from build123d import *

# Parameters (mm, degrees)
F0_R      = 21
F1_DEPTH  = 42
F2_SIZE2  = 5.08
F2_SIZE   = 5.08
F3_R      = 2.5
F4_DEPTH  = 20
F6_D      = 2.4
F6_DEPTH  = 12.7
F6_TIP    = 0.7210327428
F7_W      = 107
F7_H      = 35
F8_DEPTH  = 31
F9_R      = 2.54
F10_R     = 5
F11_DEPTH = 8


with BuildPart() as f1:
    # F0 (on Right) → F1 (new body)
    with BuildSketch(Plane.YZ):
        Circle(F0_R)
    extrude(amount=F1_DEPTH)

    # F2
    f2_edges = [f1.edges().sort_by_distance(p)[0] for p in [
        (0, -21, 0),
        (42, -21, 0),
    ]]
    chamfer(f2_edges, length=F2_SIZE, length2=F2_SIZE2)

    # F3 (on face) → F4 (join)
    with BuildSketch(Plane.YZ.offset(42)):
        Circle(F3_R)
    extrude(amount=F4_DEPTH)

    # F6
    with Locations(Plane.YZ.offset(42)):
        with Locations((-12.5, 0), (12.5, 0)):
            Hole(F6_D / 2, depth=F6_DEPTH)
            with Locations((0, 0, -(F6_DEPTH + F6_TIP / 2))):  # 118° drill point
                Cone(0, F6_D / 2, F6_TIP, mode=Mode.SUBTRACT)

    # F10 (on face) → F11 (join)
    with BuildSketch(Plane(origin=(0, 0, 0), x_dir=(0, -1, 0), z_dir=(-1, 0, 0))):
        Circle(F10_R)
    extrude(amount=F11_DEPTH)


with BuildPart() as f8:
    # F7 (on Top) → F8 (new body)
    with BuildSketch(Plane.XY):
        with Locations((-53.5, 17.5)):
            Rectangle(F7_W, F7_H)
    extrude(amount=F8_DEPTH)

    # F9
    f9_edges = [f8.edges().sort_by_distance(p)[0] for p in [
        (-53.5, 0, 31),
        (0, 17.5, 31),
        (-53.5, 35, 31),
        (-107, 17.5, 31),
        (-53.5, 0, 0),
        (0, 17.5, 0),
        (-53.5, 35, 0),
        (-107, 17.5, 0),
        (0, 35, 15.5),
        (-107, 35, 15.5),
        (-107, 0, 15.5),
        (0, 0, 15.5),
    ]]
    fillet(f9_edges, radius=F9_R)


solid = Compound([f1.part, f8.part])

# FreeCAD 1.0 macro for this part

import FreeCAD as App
import Part
import Sketcher
from FreeCAD import Vector


def edges_at(feature, points):
    """Names of the edges that pass closest to the given points."""
    edges = feature.Shape.Edges
    near = lambda p: min(range(len(edges)), key=lambda i: edges[i].distToShape(Part.Vertex(*p))[0])
    return sorted({f"Edge{near(p) + 1}" for p in points})

doc = App.newDocument("Part")
params = doc.addObject("Spreadsheet::Sheet", "Params")
for row, (alias, value) in enumerate([
    ("sketch1_diameter", "42 mm"),
    ("pad1_length", "42 mm"),
    ("chamfer_size", "5.08 mm"),
    ("chamfer_size2", "5.08 mm"),
    ("sketch2_diameter", "5 mm"),
    ("pad2_length", "20 mm"),
    ("sketch3_diameter", "2.4 mm"),
    ("hole_diameter", "2.4 mm"),
    ("hole_depth", "12.7 mm"),
    ("sketch4_diameter", "10 mm"),
    ("pad3_length", "8 mm"),
    ("sketch5_width", "107 mm"),
    ("sketch5_height", "35 mm"),
    ("pad4_length", "31 mm"),
    ("fillet_radius", "2.54 mm"),
], start=1):
    params.set(f"A{row}", alias)
    params.set(f"B{row}", "=" + value)
    params.setAlias(f"B{row}", alias)

body = doc.addObject("PartDesign::Body", "Body")

sketch1 = body.newObject("Sketcher::SketchObject", "Sketch")
sketch1.AttachmentSupport = (doc.getObject("YZ_Plane"), [""])
sketch1.MapMode = "FlatFace"
sketch1.addGeometry(Part.Circle(Vector(0, 0, 0), Vector(0, 0, 1), 21), False)
sketch1.addConstraint(Sketcher.Constraint("Coincident", 0, 3, -1, 1))
sketch1.addConstraint(Sketcher.Constraint("Diameter", 0, 42.0))
sketch1.setExpression("Constraints[1]", "Params.sketch1_diameter")
pad1 = body.newObject("PartDesign::Pad", "Pad")
pad1.Profile = sketch1
pad1.setExpression("Length", "Params.pad1_length")
doc.recompute()

chamfer = body.newObject("PartDesign::Chamfer", "Chamfer")
chamfer.Base = (pad1, edges_at(pad1, [(0, -21, 0), (42, -21, 0)]))
chamfer.ChamferType = "Two distances"
chamfer.setExpression("Size", "Params.chamfer_size")
chamfer.setExpression("Size2", "Params.chamfer_size2")

sketch2 = body.newObject("Sketcher::SketchObject", "Sketch001")
sketch2.AttachmentSupport = (doc.getObject("YZ_Plane"), [""])
sketch2.MapMode = "FlatFace"
sketch2.AttachmentOffset = App.Placement(Vector(0, 0, 42), App.Rotation())
sketch2.addGeometry(Part.Circle(Vector(0, 0, 0), Vector(0, 0, 1), 2.5), False)
sketch2.addConstraint(Sketcher.Constraint("Coincident", 0, 3, -1, 1))
sketch2.addConstraint(Sketcher.Constraint("Diameter", 0, 5.0))
sketch2.setExpression("Constraints[1]", "Params.sketch2_diameter")
pad2 = body.newObject("PartDesign::Pad", "Pad001")
pad2.Profile = sketch2
pad2.setExpression("Length", "Params.pad2_length")

sketch3 = body.newObject("Sketcher::SketchObject", "Sketch002")
sketch3.AttachmentSupport = (doc.getObject("YZ_Plane"), [""])
sketch3.MapMode = "FlatFace"
sketch3.AttachmentOffset = App.Placement(Vector(0, 0, 42), App.Rotation())
sketch3.addGeometry(Part.Circle(Vector(-12.5, 0, 0), Vector(0, 0, 1), 1.2), False)
sketch3.addGeometry(Part.Circle(Vector(12.5, 0, 0), Vector(0, 0, 1), 1.2), False)
sketch3.addConstraint(Sketcher.Constraint("Equal", 0, 1))
sketch3.addConstraint(Sketcher.Constraint("Symmetric", 0, 3, 1, 3, -1, 1))
sketch3.addConstraint(Sketcher.Constraint("PointOnObject", 0, 3, -1))
sketch3.addConstraint(Sketcher.Constraint("Diameter", 0, 2.4))
sketch3.addConstraint(Sketcher.Constraint("DistanceX", 0, 3, 1, 3, 25.0))
sketch3.setExpression("Constraints[3]", "Params.sketch3_diameter")
doc.recompute()
hole = body.newObject("PartDesign::Hole", "Hole")
hole.Profile = sketch3
hole.ThreadType = "None"
hole.setExpression("Diameter", "Params.hole_diameter")
hole.DepthType = "Dimension"
hole.setExpression("Depth", "Params.hole_depth")
hole.DrillPoint = "Angled"
hole.DrillPointAngle = 118

sketch4 = body.newObject("Sketcher::SketchObject", "Sketch003")
sketch4.AttachmentSupport = (doc.getObject("YZ_Plane"), [""])
sketch4.MapMode = "FlatFace"
sketch4.addGeometry(Part.Circle(Vector(0, 0, 0), Vector(0, 0, 1), 5), False)
sketch4.addConstraint(Sketcher.Constraint("Coincident", 0, 3, -1, 1))
sketch4.addConstraint(Sketcher.Constraint("Diameter", 0, 10.0))
sketch4.setExpression("Constraints[1]", "Params.sketch4_diameter")
pad3 = body.newObject("PartDesign::Pad", "Pad002")
pad3.Profile = sketch4
pad3.setExpression("Length", "Params.pad3_length")
pad3.Reversed = True
body2 = doc.addObject("PartDesign::Body", "Body001")

sketch5 = body2.newObject("Sketcher::SketchObject", "Sketch004")
sketch5.AttachmentSupport = (doc.getObject("XY_Plane001"), [""])
sketch5.MapMode = "FlatFace"
sketch5.addGeometry(Part.LineSegment(Vector(-107, 35, 0), Vector(-107, 0, 0)), False)
sketch5.addGeometry(Part.LineSegment(Vector(-107, 0, 0), Vector(0, 0, 0)), False)
sketch5.addGeometry(Part.LineSegment(Vector(0, 0, 0), Vector(0, 35, 0)), False)
sketch5.addGeometry(Part.LineSegment(Vector(0, 35, 0), Vector(-107, 35, 0)), False)
sketch5.addConstraint(Sketcher.Constraint("Coincident", 0, 2, 1, 1))
sketch5.addConstraint(Sketcher.Constraint("Coincident", 1, 2, 2, 1))
sketch5.addConstraint(Sketcher.Constraint("Coincident", 2, 2, 3, 1))
sketch5.addConstraint(Sketcher.Constraint("Coincident", 3, 2, 0, 1))
sketch5.addConstraint(Sketcher.Constraint("Vertical", 0))
sketch5.addConstraint(Sketcher.Constraint("Horizontal", 1))
sketch5.addConstraint(Sketcher.Constraint("Vertical", 2))
sketch5.addConstraint(Sketcher.Constraint("Horizontal", 3))
sketch5.addConstraint(Sketcher.Constraint("Coincident", 1, 2, -1, 1))
sketch5.addConstraint(Sketcher.Constraint("DistanceX", 1, 1, 1, 2, 107.0))
sketch5.addConstraint(Sketcher.Constraint("DistanceY", 0, 2, 0, 1, 35.0))
sketch5.setExpression("Constraints[9]", "Params.sketch5_width")
sketch5.setExpression("Constraints[10]", "Params.sketch5_height")
pad4 = body2.newObject("PartDesign::Pad", "Pad003")
pad4.Profile = sketch5
pad4.setExpression("Length", "Params.pad4_length")
doc.recompute()

fillet = body2.newObject("PartDesign::Fillet", "Fillet")
fillet.Base = (pad4, ["Edge1"])
fillet.UseAllEdges = True
fillet.setExpression("Radius", "Params.fillet_radius")

doc.recompute()
